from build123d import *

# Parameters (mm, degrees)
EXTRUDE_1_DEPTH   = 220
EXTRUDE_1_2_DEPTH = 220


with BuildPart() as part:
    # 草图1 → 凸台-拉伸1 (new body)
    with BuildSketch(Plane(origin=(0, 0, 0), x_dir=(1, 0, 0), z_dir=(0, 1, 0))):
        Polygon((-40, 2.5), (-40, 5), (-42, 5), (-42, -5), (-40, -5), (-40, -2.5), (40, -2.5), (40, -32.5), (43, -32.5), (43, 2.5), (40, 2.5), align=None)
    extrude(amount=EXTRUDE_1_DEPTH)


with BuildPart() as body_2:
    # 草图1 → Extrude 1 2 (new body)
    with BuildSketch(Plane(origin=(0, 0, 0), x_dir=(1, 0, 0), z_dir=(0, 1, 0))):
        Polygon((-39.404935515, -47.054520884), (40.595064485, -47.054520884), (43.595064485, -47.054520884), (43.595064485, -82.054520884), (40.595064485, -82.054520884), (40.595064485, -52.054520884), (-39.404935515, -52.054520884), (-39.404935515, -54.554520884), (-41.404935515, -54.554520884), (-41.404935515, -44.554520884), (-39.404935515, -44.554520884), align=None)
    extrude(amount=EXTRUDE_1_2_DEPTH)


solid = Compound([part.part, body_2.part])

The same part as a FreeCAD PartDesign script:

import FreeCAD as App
import Part
import Sketcher
Q = App.Units.Quantity

doc = App.newDocument("Part")
params = doc.addObject("Spreadsheet::Sheet", "Params")
for row, (alias, value) in enumerate([
    ("sketch1_width", "2 mm"),
    ("sketch1_width2", "80 mm"),
    ("sketch1_width3", "3 mm"),
    ("sketch1_height", "10 mm"),
    ("sketch1_height2", "30 mm"),
    ("pad1_length", "220 mm"),
    ("sketch2_width", "83 mm"),
    ("sketch2_width2", "2 mm"),
    ("sketch2_width3", "80 mm"),
    ("sketch2_height", "10 mm"),
    ("sketch2_height2", "30 mm"),
    ("pad2_length", "220 mm"),
], start=1):
    params.set(f"A{row}", alias)
    params.set(f"B{row}", "=" + value)
    params.setAlias(f"B{row}", alias)

body = doc.addObject("PartDesign::Body", "Body")

sketch1 = doc.addObject("Sketcher::SketchObject", "Sketch")
body.addObject(sketch1)
sketch1.AttachmentSupport = (doc.XZ_Plane, [""])
sketch1.MapMode = "FlatFace"
sketch1.addGeometry(Part.LineSegment(App.Vector(-40, -2.5, 0), App.Vector(-40, -5, 0)), False)
sketch1.addGeometry(Part.LineSegment(App.Vector(-40, -5, 0), App.Vector(-42, -5, 0)), False)
sketch1.addGeometry(Part.LineSegment(App.Vector(-42, -5, 0), App.Vector(-42, 5, 0)), False)
sketch1.addGeometry(Part.LineSegment(App.Vector(-42, 5, 0), App.Vector(-40, 5, 0)), False)
sketch1.addGeometry(Part.LineSegment(App.Vector(-40, 5, 0), App.Vector(-40, 2.5, 0)), False)
sketch1.addGeometry(Part.LineSegment(App.Vector(-40, 2.5, 0), App.Vector(40, 2.5, 0)), False)
sketch1.addGeometry(Part.LineSegment(App.Vector(40, 2.5, 0), App.Vector(40, 32.5, 0)), False)
sketch1.addGeometry(Part.LineSegment(App.Vector(40, 32.5, 0), App.Vector(43, 32.5, 0)), False)
sketch1.addGeometry(Part.LineSegment(App.Vector(43, 32.5, 0), App.Vector(43, -2.5, 0)), False)
sketch1.addGeometry(Part.LineSegment(App.Vector(43, -2.5, 0), App.Vector(-40, -2.5, 0)), False)
sketch1.addConstraint(Sketcher.Constraint("Coincident", 0, 2, 1, 1))
sketch1.addConstraint(Sketcher.Constraint("Coincident", 1, 2, 2, 1))
sketch1.addConstraint(Sketcher.Constraint("Coincident", 2, 2, 3, 1))
sketch1.addConstraint(Sketcher.Constraint("Coincident", 3, 2, 4, 1))
sketch1.addConstraint(Sketcher.Constraint("Coincident", 4, 2, 5, 1))
sketch1.addConstraint(Sketcher.Constraint("Coincident", 5, 2, 6, 1))
sketch1.addConstraint(Sketcher.Constraint("Coincident", 6, 2, 7, 1))
sketch1.addConstraint(Sketcher.Constraint("Coincident", 7, 2, 8, 1))
sketch1.addConstraint(Sketcher.Constraint("Coincident", 8, 2, 9, 1))
sketch1.addConstraint(Sketcher.Constraint("Coincident", 9, 2, 0, 1))
sketch1.addConstraint(Sketcher.Constraint("Vertical", 0))
sketch1.addConstraint(Sketcher.Constraint("Horizontal", 1))
sketch1.addConstraint(Sketcher.Constraint("Vertical", 2))
sketch1.addConstraint(Sketcher.Constraint("Horizontal", 3))
sketch1.addConstraint(Sketcher.Constraint("Vertical", 4))
sketch1.addConstraint(Sketcher.Constraint("Horizontal", 5))
sketch1.addConstraint(Sketcher.Constraint("Vertical", 6))
sketch1.addConstraint(Sketcher.Constraint("Horizontal", 7))
sketch1.addConstraint(Sketcher.Constraint("Vertical", 8))
sketch1.addConstraint(Sketcher.Constraint("Horizontal", 9))
sketch1.addConstraint(Sketcher.Constraint("Symmetric", 5, 2, 9, 2, -1, 1))
sketch1.addConstraint(Sketcher.Constraint("Symmetric", 0, 2, 3, 2, -1))
sketch1.addConstraint(Sketcher.Constraint("DistanceX", 1, 2, 1, 1, Q("2 mm")))
sketch1.addConstraint(Sketcher.Constraint("DistanceX", 5, 1, 5, 2, Q("80 mm")))
sketch1.addConstraint(Sketcher.Constraint("DistanceX", 7, 1, 7, 2, Q("3 mm")))
sketch1.addConstraint(Sketcher.Constraint("DistanceY", 2, 1, 2, 2, Q("10 mm")))
sketch1.addConstraint(Sketcher.Constraint("DistanceY", 6, 1, 6, 2, Q("30 mm")))
sketch1.addConstraint(Sketcher.Constraint("DistanceY", 8, 2, 8, 1, Q("35 mm")))
sketch1.setExpression("Constraints[22]", "Params.sketch1_width")
sketch1.setExpression("Constraints[23]", "Params.sketch1_width2")
sketch1.setExpression("Constraints[24]", "Params.sketch1_width3")
sketch1.setExpression("Constraints[25]", "Params.sketch1_height")
sketch1.setExpression("Constraints[26]", "Params.sketch1_height2")
pad1 = doc.addObject("PartDesign::Pad", "Pad")
body.addObject(pad1)
pad1.Profile = sketch1
pad1.setExpression("Length", "Params.pad1_length")
pad1.Reversed = True
body2 = doc.addObject("PartDesign::Body", "Body001")

sketch2 = doc.addObject("Sketcher::SketchObject", "Sketch001")
body2.addObject(sketch2)
sketch2.AttachmentSupport = (doc.getObject("XZ_Plane001"), [""])
sketch2.MapMode = "FlatFace"
sketch2.addGeometry(Part.LineSegment(App.Vector(43.6, 47.1, 0), App.Vector(-39.4, 47.1, 0)), False)
sketch2.addGeometry(Part.LineSegment(App.Vector(-39.4, 47.1, 0), App.Vector(-39.4, 44.6, 0)), False)
sketch2.addGeometry(Part.LineSegment(App.Vector(-39.4, 44.6, 0), App.Vector(-41.4, 44.6, 0)), False)
sketch2.addGeometry(Part.LineSegment(App.Vector(-41.4, 44.6, 0), App.Vector(-41.4, 54.6, 0)), False)
sketch2.addGeometry(Part.LineSegment(App.Vector(-41.4, 54.6, 0), App.Vector(-39.4, 54.6, 0)), False)
sketch2.addGeometry(Part.LineSegment(App.Vector(-39.4, 54.6, 0), App.Vector(-39.4, 52.1, 0)), False)
sketch2.addGeometry(Part.LineSegment(App.Vector(-39.4, 52.1, 0), App.Vector(40.6, 52.1, 0)), False)
sketch2.addGeometry(Part.LineSegment(App.Vector(40.6, 52.1, 0), App.Vector(40.6, 82.1, 0)), False)
sketch2.addGeometry(Part.LineSegment(App.Vector(40.6, 82.1, 0), App.Vector(43.6, 82.1, 0)), False)
sketch2.addGeometry(Part.LineSegment(App.Vector(43.6, 82.1, 0), App.Vector(43.6, 47.1, 0)), False)
sketch2.addConstraint(Sketcher.Constraint("Coincident", 0, 2, 1, 1))
sketch2.addConstraint(Sketcher.Constraint("Coincident", 1, 2, 2, 1))
sketch2.addConstraint(Sketcher.Constraint("Coincident", 2, 2, 3, 1))
sketch2.addConstraint(Sketcher.Constraint("Coincident", 3, 2, 4, 1))
sketch2.addConstraint(Sketcher.Constraint("Coincident", 4, 2, 5, 1))
sketch2.addConstraint(Sketcher.Constraint("Coincident", 5, 2, 6, 1))
sketch2.addConstraint(Sketcher.Constraint("Coincident", 6, 2, 7, 1))
sketch2.addConstraint(Sketcher.Constraint("Coincident", 7, 2, 8, 1))
sketch2.addConstraint(Sketcher.Constraint("Coincident", 8, 2, 9, 1))
sketch2.addConstraint(Sketcher.Constraint("Coincident", 9, 2, 0, 1))
sketch2.addConstraint(Sketcher.Constraint("Horizontal", 0))
sketch2.addConstraint(Sketcher.Constraint("Vertical", 1))
sketch2.addConstraint(Sketcher.Constraint("Horizontal", 2))
sketch2.addConstraint(Sketcher.Constraint("Vertical", 3))
sketch2.addConstraint(Sketcher.Constraint("Horizontal", 4))
sketch2.addConstraint(Sketcher.Constraint("Vertical", 5))
sketch2.addConstraint(Sketcher.Constraint("Horizontal", 6))
sketch2.addConstraint(Sketcher.Constraint("Vertical", 7))
sketch2.addConstraint(Sketcher.Constraint("Horizontal", 8))
sketch2.addConstraint(Sketcher.Constraint("Vertical", 9))
sketch2.addConstraint(Sketcher.Constraint("Vertical", 1, 2, 4, 2))
sketch2.addConstraint(Sketcher.Constraint("Equal", 1, 5))
sketch2.addConstraint(Sketcher.Constraint("DistanceX", 0, 2, 0, 1, Q("83 mm")))
sketch2.addConstraint(Sketcher.Constraint("DistanceX", 2, 2, 2, 1, Q("2 mm")))
sketch2.addConstraint(Sketcher.Constraint("DistanceX", 6, 1, 6, 2, Q("80 mm")))
sketch2.addConstraint(Sketcher.Constraint("DistanceY", 3, 1, 3, 2, Q("10 mm")))
sketch2.addConstraint(Sketcher.Constraint("DistanceY", 7, 1, 7, 2, Q("30 mm")))
sketch2.addConstraint(Sketcher.Constraint("DistanceY", 9, 2, 9, 1, Q("35 mm")))
sketch2.addConstraint(Sketcher.Constraint("DistanceY", -1, 1, 0, 2, Q("47.054521 mm")))
sketch2.addConstraint(Sketcher.Constraint("DistanceX", 0, 2, -1, 1, Q("39.404936 mm")))
sketch2.setExpression("Constraints[22]", "Params.sketch2_width")
sketch2.setExpression("Constraints[23]", "Params.sketch2_width2")
sketch2.setExpression("Constraints[24]", "Params.sketch2_width3")
sketch2.setExpression("Constraints[25]", "Params.sketch2_height")
sketch2.setExpression("Constraints[26]", "Params.sketch2_height2")
pad2 = doc.addObject("PartDesign::Pad", "Pad001")
body2.addObject(pad2)
pad2.Profile = sketch2
pad2.setExpression("Length", "Params.pad2_length")
pad2.Reversed = True

doc.recompute()
